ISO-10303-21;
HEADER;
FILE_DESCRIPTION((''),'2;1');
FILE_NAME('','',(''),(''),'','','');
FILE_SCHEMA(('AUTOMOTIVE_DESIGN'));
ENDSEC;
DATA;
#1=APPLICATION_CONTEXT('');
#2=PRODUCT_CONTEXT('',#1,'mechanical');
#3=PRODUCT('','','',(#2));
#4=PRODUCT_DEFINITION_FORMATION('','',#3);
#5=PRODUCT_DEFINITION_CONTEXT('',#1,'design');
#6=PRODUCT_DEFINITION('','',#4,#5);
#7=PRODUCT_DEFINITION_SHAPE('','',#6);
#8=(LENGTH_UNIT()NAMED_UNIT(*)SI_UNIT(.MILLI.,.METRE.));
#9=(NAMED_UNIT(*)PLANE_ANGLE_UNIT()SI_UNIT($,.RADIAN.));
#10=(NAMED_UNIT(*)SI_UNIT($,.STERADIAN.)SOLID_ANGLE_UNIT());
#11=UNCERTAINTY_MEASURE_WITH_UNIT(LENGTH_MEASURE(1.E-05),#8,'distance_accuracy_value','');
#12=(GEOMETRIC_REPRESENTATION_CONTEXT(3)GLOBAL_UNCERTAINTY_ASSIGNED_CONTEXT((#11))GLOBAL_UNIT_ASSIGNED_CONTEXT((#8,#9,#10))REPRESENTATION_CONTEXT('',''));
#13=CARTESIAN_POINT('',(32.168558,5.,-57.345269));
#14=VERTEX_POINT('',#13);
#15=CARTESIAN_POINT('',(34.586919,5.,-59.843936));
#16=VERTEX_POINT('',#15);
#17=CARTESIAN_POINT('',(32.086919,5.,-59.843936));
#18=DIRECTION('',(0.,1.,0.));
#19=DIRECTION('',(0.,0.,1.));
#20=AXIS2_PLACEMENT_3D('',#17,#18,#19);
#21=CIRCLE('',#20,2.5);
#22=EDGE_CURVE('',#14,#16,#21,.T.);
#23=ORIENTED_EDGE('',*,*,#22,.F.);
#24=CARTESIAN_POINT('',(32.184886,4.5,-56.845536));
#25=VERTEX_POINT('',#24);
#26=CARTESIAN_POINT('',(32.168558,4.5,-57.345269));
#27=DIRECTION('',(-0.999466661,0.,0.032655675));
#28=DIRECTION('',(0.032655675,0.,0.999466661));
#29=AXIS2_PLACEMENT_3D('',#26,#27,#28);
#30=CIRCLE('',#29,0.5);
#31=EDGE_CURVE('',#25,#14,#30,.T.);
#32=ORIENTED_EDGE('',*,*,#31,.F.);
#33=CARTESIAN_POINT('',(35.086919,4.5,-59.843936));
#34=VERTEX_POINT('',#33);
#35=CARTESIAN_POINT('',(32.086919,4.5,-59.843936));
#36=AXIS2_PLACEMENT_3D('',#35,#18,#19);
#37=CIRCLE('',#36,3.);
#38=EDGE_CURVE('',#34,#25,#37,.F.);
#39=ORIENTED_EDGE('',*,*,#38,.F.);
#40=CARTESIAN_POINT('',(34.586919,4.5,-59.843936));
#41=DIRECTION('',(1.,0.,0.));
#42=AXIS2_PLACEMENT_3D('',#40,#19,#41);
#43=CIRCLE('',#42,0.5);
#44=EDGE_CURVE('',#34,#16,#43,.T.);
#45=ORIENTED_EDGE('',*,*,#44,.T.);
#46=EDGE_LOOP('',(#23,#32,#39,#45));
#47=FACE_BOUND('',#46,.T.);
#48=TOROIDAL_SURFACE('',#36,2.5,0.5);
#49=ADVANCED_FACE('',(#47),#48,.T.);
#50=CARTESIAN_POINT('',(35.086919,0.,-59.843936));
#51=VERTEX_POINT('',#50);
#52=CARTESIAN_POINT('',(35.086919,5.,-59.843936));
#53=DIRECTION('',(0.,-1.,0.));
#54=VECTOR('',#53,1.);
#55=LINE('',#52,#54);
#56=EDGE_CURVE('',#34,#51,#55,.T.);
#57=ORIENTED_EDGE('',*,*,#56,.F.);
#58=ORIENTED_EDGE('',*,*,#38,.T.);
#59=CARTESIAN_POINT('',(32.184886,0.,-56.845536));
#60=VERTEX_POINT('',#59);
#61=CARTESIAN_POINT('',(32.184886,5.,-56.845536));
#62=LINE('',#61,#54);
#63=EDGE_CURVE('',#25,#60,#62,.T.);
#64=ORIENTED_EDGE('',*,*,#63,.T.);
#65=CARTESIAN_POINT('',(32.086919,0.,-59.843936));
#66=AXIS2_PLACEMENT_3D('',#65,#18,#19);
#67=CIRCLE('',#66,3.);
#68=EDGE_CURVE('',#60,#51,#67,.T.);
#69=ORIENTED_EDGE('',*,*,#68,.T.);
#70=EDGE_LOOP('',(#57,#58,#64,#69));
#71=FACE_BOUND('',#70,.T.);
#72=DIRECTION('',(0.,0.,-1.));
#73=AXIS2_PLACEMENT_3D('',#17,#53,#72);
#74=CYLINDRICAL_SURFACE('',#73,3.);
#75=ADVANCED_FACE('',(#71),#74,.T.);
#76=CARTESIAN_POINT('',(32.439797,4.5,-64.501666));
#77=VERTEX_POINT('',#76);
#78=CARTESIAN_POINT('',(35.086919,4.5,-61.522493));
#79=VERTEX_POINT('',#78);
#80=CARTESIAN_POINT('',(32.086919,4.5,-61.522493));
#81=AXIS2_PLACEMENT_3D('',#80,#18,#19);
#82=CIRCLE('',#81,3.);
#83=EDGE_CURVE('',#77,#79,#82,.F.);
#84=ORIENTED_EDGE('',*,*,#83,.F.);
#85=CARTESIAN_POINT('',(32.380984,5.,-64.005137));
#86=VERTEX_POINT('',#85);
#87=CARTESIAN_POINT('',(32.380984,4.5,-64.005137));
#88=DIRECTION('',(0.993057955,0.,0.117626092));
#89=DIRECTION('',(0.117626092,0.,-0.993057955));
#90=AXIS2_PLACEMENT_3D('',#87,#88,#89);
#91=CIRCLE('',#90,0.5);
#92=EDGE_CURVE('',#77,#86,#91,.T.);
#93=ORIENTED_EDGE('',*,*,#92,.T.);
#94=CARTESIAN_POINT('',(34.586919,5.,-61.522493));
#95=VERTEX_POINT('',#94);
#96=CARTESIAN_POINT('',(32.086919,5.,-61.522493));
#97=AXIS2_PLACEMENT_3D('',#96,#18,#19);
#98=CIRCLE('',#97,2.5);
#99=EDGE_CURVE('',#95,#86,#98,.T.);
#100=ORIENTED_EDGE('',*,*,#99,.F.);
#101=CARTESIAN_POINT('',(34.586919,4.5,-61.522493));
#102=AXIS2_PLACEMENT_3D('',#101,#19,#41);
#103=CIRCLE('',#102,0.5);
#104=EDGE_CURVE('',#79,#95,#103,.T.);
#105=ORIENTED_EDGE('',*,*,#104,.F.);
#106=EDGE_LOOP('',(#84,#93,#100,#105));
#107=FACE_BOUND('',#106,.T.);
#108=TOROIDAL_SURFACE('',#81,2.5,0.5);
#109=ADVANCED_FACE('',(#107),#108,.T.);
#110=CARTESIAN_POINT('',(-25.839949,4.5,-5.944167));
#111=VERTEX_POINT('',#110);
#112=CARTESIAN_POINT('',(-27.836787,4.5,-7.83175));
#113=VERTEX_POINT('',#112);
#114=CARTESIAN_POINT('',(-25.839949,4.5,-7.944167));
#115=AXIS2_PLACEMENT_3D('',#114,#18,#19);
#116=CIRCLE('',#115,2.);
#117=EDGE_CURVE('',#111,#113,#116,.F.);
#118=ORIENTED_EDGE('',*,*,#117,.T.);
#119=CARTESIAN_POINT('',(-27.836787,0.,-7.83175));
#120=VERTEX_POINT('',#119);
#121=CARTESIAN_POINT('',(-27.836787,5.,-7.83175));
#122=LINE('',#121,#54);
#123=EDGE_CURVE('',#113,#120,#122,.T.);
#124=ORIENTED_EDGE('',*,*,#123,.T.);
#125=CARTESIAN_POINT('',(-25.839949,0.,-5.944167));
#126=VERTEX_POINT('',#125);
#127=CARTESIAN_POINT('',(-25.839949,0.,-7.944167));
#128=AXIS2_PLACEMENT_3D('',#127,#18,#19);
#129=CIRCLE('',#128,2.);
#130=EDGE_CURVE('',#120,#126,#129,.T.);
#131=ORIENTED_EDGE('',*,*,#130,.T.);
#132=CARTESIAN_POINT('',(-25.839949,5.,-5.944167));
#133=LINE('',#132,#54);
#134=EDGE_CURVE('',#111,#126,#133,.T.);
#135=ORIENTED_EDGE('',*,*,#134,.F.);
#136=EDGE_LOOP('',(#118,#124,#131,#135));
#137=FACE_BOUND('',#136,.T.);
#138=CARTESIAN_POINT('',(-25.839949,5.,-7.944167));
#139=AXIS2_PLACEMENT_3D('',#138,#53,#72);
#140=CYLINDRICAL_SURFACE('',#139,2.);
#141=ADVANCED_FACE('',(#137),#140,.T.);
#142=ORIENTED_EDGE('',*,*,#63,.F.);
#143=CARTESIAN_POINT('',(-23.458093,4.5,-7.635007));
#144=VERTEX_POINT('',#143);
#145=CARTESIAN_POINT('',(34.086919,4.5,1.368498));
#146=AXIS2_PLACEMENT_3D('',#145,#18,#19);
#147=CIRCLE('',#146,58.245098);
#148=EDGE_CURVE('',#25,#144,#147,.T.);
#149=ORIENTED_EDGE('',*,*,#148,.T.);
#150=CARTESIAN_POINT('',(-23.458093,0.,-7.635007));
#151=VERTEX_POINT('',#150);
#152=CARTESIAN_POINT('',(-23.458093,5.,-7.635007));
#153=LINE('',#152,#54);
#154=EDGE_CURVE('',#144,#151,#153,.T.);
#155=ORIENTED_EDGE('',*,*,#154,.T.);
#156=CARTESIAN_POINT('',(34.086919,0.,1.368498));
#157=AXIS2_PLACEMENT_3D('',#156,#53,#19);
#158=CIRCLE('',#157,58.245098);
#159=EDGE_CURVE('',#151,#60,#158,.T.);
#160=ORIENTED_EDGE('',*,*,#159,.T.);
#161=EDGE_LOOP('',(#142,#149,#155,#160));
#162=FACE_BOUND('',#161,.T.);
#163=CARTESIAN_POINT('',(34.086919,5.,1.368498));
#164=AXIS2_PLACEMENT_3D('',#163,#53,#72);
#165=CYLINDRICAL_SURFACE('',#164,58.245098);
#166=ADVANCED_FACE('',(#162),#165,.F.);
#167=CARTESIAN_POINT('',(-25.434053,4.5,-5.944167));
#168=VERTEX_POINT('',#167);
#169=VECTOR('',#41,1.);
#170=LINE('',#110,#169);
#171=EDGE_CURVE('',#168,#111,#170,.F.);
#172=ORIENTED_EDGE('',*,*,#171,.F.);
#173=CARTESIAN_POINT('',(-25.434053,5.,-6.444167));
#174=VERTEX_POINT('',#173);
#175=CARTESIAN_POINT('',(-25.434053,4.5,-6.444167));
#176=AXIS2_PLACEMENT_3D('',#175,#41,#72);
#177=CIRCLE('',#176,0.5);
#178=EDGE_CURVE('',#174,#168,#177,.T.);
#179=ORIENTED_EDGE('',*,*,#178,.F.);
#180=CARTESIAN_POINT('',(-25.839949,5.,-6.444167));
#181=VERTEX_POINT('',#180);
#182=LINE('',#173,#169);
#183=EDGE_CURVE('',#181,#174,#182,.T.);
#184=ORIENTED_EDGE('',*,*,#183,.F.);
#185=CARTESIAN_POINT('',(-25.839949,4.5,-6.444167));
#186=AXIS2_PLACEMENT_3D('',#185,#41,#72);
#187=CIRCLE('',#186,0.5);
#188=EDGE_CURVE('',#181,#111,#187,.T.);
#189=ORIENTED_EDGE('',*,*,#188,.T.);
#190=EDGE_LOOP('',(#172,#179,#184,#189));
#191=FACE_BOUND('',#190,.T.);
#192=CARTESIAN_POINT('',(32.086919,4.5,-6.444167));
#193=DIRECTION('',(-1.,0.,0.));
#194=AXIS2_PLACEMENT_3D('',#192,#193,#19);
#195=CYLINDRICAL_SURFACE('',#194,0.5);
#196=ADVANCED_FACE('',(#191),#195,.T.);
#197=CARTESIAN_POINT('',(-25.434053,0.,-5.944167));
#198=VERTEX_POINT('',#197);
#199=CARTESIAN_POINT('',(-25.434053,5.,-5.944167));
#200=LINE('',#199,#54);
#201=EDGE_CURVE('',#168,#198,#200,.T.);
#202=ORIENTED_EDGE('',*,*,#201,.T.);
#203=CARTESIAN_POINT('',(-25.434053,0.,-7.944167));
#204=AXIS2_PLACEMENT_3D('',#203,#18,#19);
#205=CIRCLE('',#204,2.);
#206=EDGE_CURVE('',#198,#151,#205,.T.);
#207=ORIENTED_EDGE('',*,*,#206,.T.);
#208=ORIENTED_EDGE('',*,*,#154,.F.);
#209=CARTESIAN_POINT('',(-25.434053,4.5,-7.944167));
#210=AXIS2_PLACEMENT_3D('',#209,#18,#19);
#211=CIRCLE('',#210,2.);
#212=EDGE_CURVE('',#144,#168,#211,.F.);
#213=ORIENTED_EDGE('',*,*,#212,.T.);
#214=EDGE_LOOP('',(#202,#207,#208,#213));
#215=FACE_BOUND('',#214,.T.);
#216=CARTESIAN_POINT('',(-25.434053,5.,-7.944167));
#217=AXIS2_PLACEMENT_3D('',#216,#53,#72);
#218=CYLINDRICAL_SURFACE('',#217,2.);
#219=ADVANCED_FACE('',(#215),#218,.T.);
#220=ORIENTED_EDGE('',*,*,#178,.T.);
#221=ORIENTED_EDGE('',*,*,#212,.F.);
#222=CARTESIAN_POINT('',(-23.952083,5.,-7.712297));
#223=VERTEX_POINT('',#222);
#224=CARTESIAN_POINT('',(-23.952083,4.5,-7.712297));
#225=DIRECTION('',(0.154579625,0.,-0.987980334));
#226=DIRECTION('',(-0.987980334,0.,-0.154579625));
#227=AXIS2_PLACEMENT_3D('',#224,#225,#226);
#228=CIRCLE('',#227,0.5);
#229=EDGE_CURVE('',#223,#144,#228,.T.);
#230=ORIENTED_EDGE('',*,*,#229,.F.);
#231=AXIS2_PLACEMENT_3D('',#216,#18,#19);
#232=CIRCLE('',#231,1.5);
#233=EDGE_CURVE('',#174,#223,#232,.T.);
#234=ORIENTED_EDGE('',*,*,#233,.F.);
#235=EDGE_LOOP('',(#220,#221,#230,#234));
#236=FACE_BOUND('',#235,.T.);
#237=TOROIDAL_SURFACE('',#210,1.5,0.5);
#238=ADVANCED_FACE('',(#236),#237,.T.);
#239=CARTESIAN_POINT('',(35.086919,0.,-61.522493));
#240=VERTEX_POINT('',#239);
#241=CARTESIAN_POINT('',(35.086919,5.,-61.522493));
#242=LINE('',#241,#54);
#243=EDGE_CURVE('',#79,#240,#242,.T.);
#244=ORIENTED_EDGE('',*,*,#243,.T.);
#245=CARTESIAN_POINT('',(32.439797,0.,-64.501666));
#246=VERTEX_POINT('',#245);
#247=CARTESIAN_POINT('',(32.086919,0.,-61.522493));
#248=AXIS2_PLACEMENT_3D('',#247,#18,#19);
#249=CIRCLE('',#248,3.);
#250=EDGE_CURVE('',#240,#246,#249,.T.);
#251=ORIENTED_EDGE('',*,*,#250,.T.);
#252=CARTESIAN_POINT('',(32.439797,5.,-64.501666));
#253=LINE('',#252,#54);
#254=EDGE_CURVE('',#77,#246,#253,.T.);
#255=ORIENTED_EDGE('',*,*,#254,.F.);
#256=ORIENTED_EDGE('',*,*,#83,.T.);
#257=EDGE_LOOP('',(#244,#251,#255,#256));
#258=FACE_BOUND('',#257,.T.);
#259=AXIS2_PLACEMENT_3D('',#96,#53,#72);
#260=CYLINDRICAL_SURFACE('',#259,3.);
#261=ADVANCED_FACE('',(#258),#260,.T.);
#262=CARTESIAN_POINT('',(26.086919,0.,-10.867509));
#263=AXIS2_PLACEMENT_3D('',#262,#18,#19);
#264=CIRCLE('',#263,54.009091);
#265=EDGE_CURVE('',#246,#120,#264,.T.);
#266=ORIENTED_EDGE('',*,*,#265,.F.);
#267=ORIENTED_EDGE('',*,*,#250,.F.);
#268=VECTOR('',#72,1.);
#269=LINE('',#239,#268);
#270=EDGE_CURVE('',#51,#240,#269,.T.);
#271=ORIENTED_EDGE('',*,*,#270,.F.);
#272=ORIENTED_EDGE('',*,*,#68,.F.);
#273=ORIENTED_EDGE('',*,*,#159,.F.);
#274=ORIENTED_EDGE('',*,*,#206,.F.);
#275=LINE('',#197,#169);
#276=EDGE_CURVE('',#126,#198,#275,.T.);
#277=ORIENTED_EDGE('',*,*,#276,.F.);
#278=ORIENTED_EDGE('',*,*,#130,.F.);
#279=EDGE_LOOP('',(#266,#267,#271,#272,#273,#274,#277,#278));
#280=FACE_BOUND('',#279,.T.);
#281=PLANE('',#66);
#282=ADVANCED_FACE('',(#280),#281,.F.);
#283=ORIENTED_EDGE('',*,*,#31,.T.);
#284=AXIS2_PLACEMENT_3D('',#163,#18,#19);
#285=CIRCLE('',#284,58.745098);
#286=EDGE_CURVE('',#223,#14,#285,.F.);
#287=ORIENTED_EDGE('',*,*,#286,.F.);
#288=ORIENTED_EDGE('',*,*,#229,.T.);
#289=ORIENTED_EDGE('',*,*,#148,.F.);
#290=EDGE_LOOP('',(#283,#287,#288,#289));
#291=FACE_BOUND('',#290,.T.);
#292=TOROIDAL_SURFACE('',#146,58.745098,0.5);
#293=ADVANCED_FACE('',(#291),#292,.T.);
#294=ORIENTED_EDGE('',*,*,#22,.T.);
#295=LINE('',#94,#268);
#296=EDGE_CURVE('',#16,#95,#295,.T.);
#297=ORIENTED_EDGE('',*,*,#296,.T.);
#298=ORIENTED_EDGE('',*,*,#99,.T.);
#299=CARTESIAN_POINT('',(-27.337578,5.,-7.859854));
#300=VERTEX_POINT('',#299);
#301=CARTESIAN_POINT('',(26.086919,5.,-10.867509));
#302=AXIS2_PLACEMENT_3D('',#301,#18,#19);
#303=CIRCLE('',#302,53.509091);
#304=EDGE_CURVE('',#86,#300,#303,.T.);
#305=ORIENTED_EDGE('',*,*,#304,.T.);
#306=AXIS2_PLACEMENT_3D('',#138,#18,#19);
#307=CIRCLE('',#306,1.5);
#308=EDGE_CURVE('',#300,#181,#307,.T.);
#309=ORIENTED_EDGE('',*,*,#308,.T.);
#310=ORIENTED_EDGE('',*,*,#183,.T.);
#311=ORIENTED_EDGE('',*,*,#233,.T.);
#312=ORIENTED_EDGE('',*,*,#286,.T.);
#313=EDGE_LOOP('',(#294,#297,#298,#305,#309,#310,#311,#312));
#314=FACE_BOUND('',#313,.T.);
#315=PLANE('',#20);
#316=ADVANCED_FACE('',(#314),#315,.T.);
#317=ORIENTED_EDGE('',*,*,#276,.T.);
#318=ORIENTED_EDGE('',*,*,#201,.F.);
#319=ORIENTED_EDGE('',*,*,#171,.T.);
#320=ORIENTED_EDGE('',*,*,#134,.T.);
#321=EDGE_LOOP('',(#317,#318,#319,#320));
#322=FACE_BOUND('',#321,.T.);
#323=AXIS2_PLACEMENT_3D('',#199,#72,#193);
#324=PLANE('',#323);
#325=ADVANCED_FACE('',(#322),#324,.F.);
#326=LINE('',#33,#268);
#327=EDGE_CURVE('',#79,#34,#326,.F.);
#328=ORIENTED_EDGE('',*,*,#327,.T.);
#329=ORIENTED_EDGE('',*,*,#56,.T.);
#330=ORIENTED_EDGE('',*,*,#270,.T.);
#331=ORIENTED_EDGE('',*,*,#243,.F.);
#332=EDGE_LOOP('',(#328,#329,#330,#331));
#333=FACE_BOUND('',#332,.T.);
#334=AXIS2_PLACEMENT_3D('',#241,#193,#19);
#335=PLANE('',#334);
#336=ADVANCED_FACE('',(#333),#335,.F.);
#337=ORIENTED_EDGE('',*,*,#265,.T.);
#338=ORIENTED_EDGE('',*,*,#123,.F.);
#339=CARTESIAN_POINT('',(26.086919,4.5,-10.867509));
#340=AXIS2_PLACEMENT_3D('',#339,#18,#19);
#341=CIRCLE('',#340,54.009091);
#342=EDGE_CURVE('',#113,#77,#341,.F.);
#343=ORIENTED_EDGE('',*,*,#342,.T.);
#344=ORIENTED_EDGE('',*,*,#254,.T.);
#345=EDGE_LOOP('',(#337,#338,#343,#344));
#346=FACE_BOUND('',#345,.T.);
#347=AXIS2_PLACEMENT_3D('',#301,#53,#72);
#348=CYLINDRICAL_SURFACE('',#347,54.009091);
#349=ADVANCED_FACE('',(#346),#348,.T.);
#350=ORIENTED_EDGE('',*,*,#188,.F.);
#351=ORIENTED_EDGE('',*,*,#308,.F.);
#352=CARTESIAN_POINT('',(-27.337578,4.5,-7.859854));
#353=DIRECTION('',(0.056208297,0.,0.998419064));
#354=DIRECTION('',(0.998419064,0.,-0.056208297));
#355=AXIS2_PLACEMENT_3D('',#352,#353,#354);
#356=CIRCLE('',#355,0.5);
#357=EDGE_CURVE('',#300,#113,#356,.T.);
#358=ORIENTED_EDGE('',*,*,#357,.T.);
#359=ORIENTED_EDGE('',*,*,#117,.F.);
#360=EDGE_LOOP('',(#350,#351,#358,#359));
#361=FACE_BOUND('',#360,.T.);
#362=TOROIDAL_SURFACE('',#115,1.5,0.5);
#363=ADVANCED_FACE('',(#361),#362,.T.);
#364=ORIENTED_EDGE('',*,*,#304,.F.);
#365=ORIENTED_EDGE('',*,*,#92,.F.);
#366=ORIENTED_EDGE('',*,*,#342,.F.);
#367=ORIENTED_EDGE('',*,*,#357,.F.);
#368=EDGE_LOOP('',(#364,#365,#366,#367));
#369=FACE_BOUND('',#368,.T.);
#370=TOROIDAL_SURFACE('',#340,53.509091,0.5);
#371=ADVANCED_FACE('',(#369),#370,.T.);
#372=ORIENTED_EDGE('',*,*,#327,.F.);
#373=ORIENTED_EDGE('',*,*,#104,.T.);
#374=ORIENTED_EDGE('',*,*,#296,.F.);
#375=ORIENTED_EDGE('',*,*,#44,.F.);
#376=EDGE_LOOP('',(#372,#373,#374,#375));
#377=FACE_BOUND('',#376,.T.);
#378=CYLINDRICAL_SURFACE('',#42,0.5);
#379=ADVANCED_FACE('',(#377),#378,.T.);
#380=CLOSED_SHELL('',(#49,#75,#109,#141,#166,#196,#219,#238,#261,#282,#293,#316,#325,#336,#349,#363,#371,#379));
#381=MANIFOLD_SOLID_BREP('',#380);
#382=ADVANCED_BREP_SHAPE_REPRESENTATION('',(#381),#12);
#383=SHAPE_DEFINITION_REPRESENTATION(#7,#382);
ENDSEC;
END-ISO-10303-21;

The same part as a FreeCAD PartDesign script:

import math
import FreeCAD as App
import Part
import Sketcher
from FreeCAD import Vector


def edges_at(feature, points):
    """Names of the edges that pass closest to the given points."""
    edges = feature.Shape.Edges
    near = lambda p: min(range(len(edges)), key=lambda i: edges[i].distToShape(Part.Vertex(*p))[0])
    return sorted({f"Edge{near(p) + 1}" for p in points})

doc = App.newDocument("Part")
params = doc.addObject("Spreadsheet::Sheet", "Params")
for row, (alias, value) in enumerate([
    ("sketch1_radius", "2 mm"),
    ("sketch1_radius2", "3 mm"),
    ("pad1_length", "5 mm"),
    ("fillet_radius", "0.5 mm"),
], start=1):
    params.set(f"A{row}", alias)
    params.set(f"B{row}", "=" + value)
    params.setAlias(f"B{row}", alias)

body = doc.addObject("PartDesign::Body", "Body")

# Sketch on XZ plane
sketch1 = doc.addObject("Sketcher::SketchObject", "Sketch")
body.addObject(sketch1)
sketch1.AttachmentSupport = (doc.XZ_Plane, [""])
sketch1.MapMode = "FlatFace"
sketch1.addGeometry([
    Part.LineSegment(Vector(-25.839949, -5.944167, 0), Vector(-25.434053, -5.944167, 0)),  # 0
    Part.ArcOfCircle(Part.Circle(Vector(-25.434053, -7.944167, 0), Vector(0, 0, 1), 2), math.radians(8.892417), math.radians(90)),  # 1
    Part.ArcOfCircle(Part.Circle(Vector(34.086919, 1.368498, 0), Vector(0, 0, 1), 58.245098), math.radians(-171.107583), math.radians(-91.871365)),  # 2
    Part.ArcOfCircle(Part.Circle(Vector(32.086919, -59.843936, 0), Vector(0, 0, 1), 3), math.radians(0), math.radians(88.128635)),  # 3
    Part.LineSegment(Vector(35.086919, -59.843936, 0), Vector(35.086919, -61.522493, 0)),  # 4
    Part.ArcOfCircle(Part.Circle(Vector(32.086919, -61.522493, 0), Vector(0, 0, 1), 3), math.radians(-83.244883), math.radians(0)),  # 5
    Part.ArcOfCircle(Part.Circle(Vector(26.086919, -10.867509, 0), Vector(0, 0, 1), 54.009091), math.radians(176.777804), math.radians(276.755117)),  # 6
    Part.ArcOfCircle(Part.Circle(Vector(-25.839949, -7.944167, 0), Vector(0, 0, 1), 2), math.radians(90), math.radians(176.777804)),  # 7
], False)
sketch1.addConstraint([
    Sketcher.Constraint("Tangent", 0, 2, 1, 2),
    Sketcher.Constraint("Tangent", 1, 1, 2, 1),
    Sketcher.Constraint("Tangent", 2, 2, 3, 2),
    Sketcher.Constraint("Tangent", 3, 1, 4, 1),
    Sketcher.Constraint("Tangent", 4, 2, 5, 2),
    Sketcher.Constraint("Tangent", 5, 1, 6, 2),
    Sketcher.Constraint("Tangent", 6, 1, 7, 2),
    Sketcher.Constraint("Tangent", 7, 1, 0, 1),
    Sketcher.Constraint("Horizontal", 0),
    Sketcher.Constraint("Vertical", 4),
    Sketcher.Constraint("Equal", 3, 5),
    Sketcher.Constraint("Equal", 1, 7),
    Sketcher.Constraint("Radius", 1, 2.0),
    Sketcher.Constraint("Radius", 3, 3.0),
    Sketcher.Constraint("DistanceX", 3, 3, 2, 3, 2.0),
    Sketcher.Constraint("DistanceX", 6, 3, 2, 3, 8.0),
    Sketcher.Constraint("Radius", 2, 58.245098),
    Sketcher.Constraint("Radius", 6, 54.009091),
    Sketcher.Constraint("DistanceY", -1, 1, 2, 3, 1.368498),
    Sketcher.Constraint("DistanceY", 6, 3, 1, 1, 3.232502),
    Sketcher.Constraint("DistanceX", 0, 1, 0, 2, 0.405896),
    Sketcher.Constraint("DistanceX", -1, 1, 2, 3, 34.086919),
])
sketch1.setExpression("Constraints[12]", "Params.sketch1_radius")
sketch1.setExpression("Constraints[13]", "Params.sketch1_radius2")
pad1 = doc.addObject("PartDesign::Pad", "Pad")
body.addObject(pad1)
pad1.Profile = sketch1
pad1.setExpression("Length", "Params.pad1_length")
pad1.Reversed = True
doc.recompute()

fillet = doc.addObject("PartDesign::Fillet", "Fillet")
body.addObject(fillet)
fillet.Base = (pad1, edges_at(pad1, [
    (34.33, 5, -63.515),
    (-10.908, 5, -50.217),
    (-27.214, 5, -6.491),
    (-25.637, 5, -5.944),
    (-24.134, 5, -6.425),
    (-4.499, 5, -42.262),
    (34.243, 5, -57.758),
    (35.087, 5, -60.683),
]))
fillet.setExpression("Radius", "Params.fillet_radius")

doc.recompute()
